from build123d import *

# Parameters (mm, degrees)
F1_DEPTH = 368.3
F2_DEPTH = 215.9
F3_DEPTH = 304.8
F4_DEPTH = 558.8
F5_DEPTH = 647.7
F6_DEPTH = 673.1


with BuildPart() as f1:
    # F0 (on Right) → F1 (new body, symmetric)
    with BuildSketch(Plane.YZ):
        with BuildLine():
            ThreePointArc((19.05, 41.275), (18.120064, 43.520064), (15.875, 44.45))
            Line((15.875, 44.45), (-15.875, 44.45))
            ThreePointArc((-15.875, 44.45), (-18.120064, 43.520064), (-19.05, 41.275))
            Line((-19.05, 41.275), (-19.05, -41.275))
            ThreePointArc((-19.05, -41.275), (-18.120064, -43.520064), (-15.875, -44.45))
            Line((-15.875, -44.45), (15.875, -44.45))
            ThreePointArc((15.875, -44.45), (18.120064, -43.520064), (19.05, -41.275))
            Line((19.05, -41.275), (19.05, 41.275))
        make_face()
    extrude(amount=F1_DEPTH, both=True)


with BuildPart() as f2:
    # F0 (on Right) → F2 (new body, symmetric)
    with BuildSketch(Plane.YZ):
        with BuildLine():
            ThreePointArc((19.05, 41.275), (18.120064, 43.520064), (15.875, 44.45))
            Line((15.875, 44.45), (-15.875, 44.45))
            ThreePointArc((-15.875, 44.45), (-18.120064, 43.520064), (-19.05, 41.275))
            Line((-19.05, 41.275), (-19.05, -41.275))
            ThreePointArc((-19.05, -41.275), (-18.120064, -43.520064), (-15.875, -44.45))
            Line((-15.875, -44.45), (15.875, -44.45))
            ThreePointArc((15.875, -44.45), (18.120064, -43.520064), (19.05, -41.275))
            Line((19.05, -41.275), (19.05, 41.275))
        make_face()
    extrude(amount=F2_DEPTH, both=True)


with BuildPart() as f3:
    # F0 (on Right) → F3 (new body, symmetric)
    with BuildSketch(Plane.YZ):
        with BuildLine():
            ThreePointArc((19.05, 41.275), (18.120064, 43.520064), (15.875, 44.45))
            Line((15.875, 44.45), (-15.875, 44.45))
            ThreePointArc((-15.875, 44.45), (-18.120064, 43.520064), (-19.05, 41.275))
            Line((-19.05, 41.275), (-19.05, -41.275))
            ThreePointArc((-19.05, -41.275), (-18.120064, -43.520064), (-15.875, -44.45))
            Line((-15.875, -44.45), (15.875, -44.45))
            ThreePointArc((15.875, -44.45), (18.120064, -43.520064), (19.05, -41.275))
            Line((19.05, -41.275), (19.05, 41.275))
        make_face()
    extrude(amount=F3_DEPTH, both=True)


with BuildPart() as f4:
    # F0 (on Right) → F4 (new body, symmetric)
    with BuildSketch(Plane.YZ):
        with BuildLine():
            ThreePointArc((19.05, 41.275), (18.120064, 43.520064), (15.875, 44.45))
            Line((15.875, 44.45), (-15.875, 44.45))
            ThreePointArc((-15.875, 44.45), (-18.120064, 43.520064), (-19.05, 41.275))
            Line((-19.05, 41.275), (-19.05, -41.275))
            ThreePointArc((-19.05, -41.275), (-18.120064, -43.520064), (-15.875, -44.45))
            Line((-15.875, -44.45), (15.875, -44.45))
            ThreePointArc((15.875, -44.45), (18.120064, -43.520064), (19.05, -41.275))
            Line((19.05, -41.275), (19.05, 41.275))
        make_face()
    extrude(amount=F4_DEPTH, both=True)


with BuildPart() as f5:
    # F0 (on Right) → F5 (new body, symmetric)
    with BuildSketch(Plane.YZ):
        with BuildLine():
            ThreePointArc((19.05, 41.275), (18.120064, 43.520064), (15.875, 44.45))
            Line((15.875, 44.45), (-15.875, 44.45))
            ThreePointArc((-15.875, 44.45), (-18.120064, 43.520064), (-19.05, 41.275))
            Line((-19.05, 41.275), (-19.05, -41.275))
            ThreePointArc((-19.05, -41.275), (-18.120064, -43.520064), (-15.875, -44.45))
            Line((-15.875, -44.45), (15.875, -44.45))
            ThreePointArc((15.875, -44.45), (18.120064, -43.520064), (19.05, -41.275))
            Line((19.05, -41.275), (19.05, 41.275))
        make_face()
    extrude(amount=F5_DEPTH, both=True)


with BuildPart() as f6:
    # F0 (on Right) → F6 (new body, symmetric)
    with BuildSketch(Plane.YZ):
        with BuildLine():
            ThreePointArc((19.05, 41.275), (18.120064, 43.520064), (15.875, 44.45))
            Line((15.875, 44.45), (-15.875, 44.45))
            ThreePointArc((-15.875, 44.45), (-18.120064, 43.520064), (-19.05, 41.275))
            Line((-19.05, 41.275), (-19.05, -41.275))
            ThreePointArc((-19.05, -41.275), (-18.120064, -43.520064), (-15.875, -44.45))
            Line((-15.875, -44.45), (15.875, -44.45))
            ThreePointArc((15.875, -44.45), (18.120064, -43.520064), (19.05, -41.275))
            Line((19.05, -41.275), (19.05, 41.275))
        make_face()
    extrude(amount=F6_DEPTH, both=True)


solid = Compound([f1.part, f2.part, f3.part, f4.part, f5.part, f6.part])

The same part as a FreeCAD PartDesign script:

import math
import FreeCAD as App
import Part
import Sketcher
Q = App.Units.Quantity

doc = App.newDocument("Part")
body = doc.addObject("PartDesign::Body", "Body")

sketch1 = body.newObject("Sketcher::SketchObject", "Sketch")
sketch1.AttachmentSupport = (doc.getObject("YZ_Plane"), [""])
sketch1.MapMode = "FlatFace"
sketch1.addGeometry([
    Part.ArcOfCircle(Part.Circle(App.Vector(15.9, 41.3, 0), App.Vector(0, 0, 1), 3.2), math.radians(0), math.radians(90)),
    Part.LineSegment(App.Vector(15.9, 44.5, 0), App.Vector(-15.9, 44.5, 0)),
    Part.ArcOfCircle(Part.Circle(App.Vector(-15.9, 41.3, 0), App.Vector(0, 0, 1), 3.2), math.radians(90), math.radians(180)),
    Part.LineSegment(App.Vector(-19.1, 41.3, 0), App.Vector(-19.1, -41.3, 0)),
    Part.ArcOfCircle(Part.Circle(App.Vector(-15.9, -41.3, 0), App.Vector(0, 0, 1), 3.2), math.radians(-180), math.radians(-90)),
    Part.LineSegment(App.Vector(-15.9, -44.5, 0), App.Vector(15.9, -44.5, 0)),
    Part.ArcOfCircle(Part.Circle(App.Vector(15.9, -41.3, 0), App.Vector(0, 0, 1), 3.2), math.radians(-90), math.radians(0)),
    Part.LineSegment(App.Vector(19.1, -41.3, 0), App.Vector(19.1, 41.3, 0)),
], False)
sketch1.addConstraint([
    Sketcher.Constraint("Tangent", 0, 2, 1, 1),
    Sketcher.Constraint("Tangent", 1, 2, 2, 1),
    Sketcher.Constraint("Tangent", 2, 2, 3, 1),
    Sketcher.Constraint("Tangent", 3, 2, 4, 1),
    Sketcher.Constraint("Tangent", 4, 2, 5, 1),
    Sketcher.Constraint("Tangent", 5, 2, 6, 1),
    Sketcher.Constraint("Tangent", 6, 2, 7, 1),
    Sketcher.Constraint("Tangent", 7, 2, 0, 1),
    Sketcher.Constraint("Horizontal", 1),
    Sketcher.Constraint("Vertical", 3),
    Sketcher.Constraint("Horizontal", 5),
    Sketcher.Constraint("Vertical", 7),
    Sketcher.Constraint("Equal", 0, 2),
    Sketcher.Constraint("Equal", 2, 4),
    Sketcher.Constraint("Equal", 4, 6),
    Sketcher.Constraint("Symmetric", 0, 3, 4, 3, -1, 1),
    Sketcher.Constraint("Radius", 0, Q("0.125 in")),
    Sketcher.Constraint("DistanceX", 1, 2, 1, 1, Q("1.25 in")),
    Sketcher.Constraint("DistanceY", 3, 2, 3, 1, Q("3.25 in")),
])
pad1 = body.newObject("PartDesign::Pad", "Pad")
pad1.Profile = sketch1
pad1.Length = Q("29 in")
pad1.Midplane = True
body2 = doc.addObject("PartDesign::Body", "Body001")

sketch2 = body2.newObject("Sketcher::SketchObject", "Sketch001")
sketch2.AttachmentSupport = (doc.getObject("YZ_Plane001"), [""])
sketch2.MapMode = "FlatFace"
sketch2.addGeometry([
    Part.ArcOfCircle(Part.Circle(App.Vector(15.9, 41.3, 0), App.Vector(0, 0, 1), 3.2), math.radians(0), math.radians(90)),
    Part.LineSegment(App.Vector(15.9, 44.5, 0), App.Vector(-15.9, 44.5, 0)),
    Part.ArcOfCircle(Part.Circle(App.Vector(-15.9, 41.3, 0), App.Vector(0, 0, 1), 3.2), math.radians(90), math.radians(180)),
    Part.LineSegment(App.Vector(-19.1, 41.3, 0), App.Vector(-19.1, -41.3, 0)),
    Part.ArcOfCircle(Part.Circle(App.Vector(-15.9, -41.3, 0), App.Vector(0, 0, 1), 3.2), math.radians(-180), math.radians(-90)),
    Part.LineSegment(App.Vector(-15.9, -44.5, 0), App.Vector(15.9, -44.5, 0)),
    Part.ArcOfCircle(Part.Circle(App.Vector(15.9, -41.3, 0), App.Vector(0, 0, 1), 3.2), math.radians(-90), math.radians(0)),
    Part.LineSegment(App.Vector(19.1, -41.3, 0), App.Vector(19.1, 41.3, 0)),
], False)
sketch2.addConstraint([
    Sketcher.Constraint("Tangent", 0, 2, 1, 1),
    Sketcher.Constraint("Tangent", 1, 2, 2, 1),
    Sketcher.Constraint("Tangent", 2, 2, 3, 1),
    Sketcher.Constraint("Tangent", 3, 2, 4, 1),
    Sketcher.Constraint("Tangent", 4, 2, 5, 1),
    Sketcher.Constraint("Tangent", 5, 2, 6, 1),
    Sketcher.Constraint("Tangent", 6, 2, 7, 1),
    Sketcher.Constraint("Tangent", 7, 2, 0, 1),
    Sketcher.Constraint("Horizontal", 1),
    Sketcher.Constraint("Vertical", 3),
    Sketcher.Constraint("Horizontal", 5),
    Sketcher.Constraint("Vertical", 7),
    Sketcher.Constraint("Equal", 0, 2),
    Sketcher.Constraint("Equal", 2, 4),
    Sketcher.Constraint("Equal", 4, 6),
    Sketcher.Constraint("Symmetric", 0, 3, 4, 3, -1, 1),
    Sketcher.Constraint("Radius", 0, Q("0.125 in")),
    Sketcher.Constraint("DistanceX", 1, 2, 1, 1, Q("1.25 in")),
    Sketcher.Constraint("DistanceY", 3, 2, 3, 1, Q("3.25 in")),
])
pad2 = body2.newObject("PartDesign::Pad", "Pad001")
pad2.Profile = sketch2
pad2.Length = Q("17 in")
pad2.Midplane = True
body3 = doc.addObject("PartDesign::Body", "Body002")

sketch3 = body3.newObject("Sketcher::SketchObject", "Sketch002")
sketch3.AttachmentSupport = (doc.getObject("YZ_Plane002"), [""])
sketch3.MapMode = "FlatFace"
sketch3.addGeometry([
    Part.ArcOfCircle(Part.Circle(App.Vector(15.9, 41.3, 0), App.Vector(0, 0, 1), 3.2), math.radians(0), math.radians(90)),
    Part.LineSegment(App.Vector(15.9, 44.5, 0), App.Vector(-15.9, 44.5, 0)),
    Part.ArcOfCircle(Part.Circle(App.Vector(-15.9, 41.3, 0), App.Vector(0, 0, 1), 3.2), math.radians(90), math.radians(180)),
    Part.LineSegment(App.Vector(-19.1, 41.3, 0), App.Vector(-19.1, -41.3, 0)),
    Part.ArcOfCircle(Part.Circle(App.Vector(-15.9, -41.3, 0), App.Vector(0, 0, 1), 3.2), math.radians(-180), math.radians(-90)),
    Part.LineSegment(App.Vector(-15.9, -44.5, 0), App.Vector(15.9, -44.5, 0)),
    Part.ArcOfCircle(Part.Circle(App.Vector(15.9, -41.3, 0), App.Vector(0, 0, 1), 3.2), math.radians(-90), math.radians(0)),
    Part.LineSegment(App.Vector(19.1, -41.3, 0), App.Vector(19.1, 41.3, 0)),
], False)
sketch3.addConstraint([
    Sketcher.Constraint("Tangent", 0, 2, 1, 1),
    Sketcher.Constraint("Tangent", 1, 2, 2, 1),
    Sketcher.Constraint("Tangent", 2, 2, 3, 1),
    Sketcher.Constraint("Tangent", 3, 2, 4, 1),
    Sketcher.Constraint("Tangent", 4, 2, 5, 1),
    Sketcher.Constraint("Tangent", 5, 2, 6, 1),
    Sketcher.Constraint("Tangent", 6, 2, 7, 1),
    Sketcher.Constraint("Tangent", 7, 2, 0, 1),
    Sketcher.Constraint("Horizontal", 1),
    Sketcher.Constraint("Vertical", 3),
    Sketcher.Constraint("Horizontal", 5),
    Sketcher.Constraint("Vertical", 7),
    Sketcher.Constraint("Equal", 0, 2),
    Sketcher.Constraint("Equal", 2, 4),
    Sketcher.Constraint("Equal", 4, 6),
    Sketcher.Constraint("Symmetric", 0, 3, 4, 3, -1, 1),
    Sketcher.Constraint("Radius", 0, Q("0.125 in")),
    Sketcher.Constraint("DistanceX", 1, 2, 1, 1, Q("1.25 in")),
    Sketcher.Constraint("DistanceY", 3, 2, 3, 1, Q("3.25 in")),
])
pad3 = body3.newObject("PartDesign::Pad", "Pad002")
pad3.Profile = sketch3
pad3.Length = Q("24 in")
pad3.Midplane = True
body4 = doc.addObject("PartDesign::Body", "Body003")

sketch4 = body4.newObject("Sketcher::SketchObject", "Sketch003")
sketch4.AttachmentSupport = (doc.getObject("YZ_Plane003"), [""])
sketch4.MapMode = "FlatFace"
sketch4.addGeometry([
    Part.ArcOfCircle(Part.Circle(App.Vector(15.9, 41.3, 0), App.Vector(0, 0, 1), 3.2), math.radians(0), math.radians(90)),
    Part.LineSegment(App.Vector(15.9, 44.5, 0), App.Vector(-15.9, 44.5, 0)),
    Part.ArcOfCircle(Part.Circle(App.Vector(-15.9, 41.3, 0), App.Vector(0, 0, 1), 3.2), math.radians(90), math.radians(180)),
    Part.LineSegment(App.Vector(-19.1, 41.3, 0), App.Vector(-19.1, -41.3, 0)),
    Part.ArcOfCircle(Part.Circle(App.Vector(-15.9, -41.3, 0), App.Vector(0, 0, 1), 3.2), math.radians(-180), math.radians(-90)),
    Part.LineSegment(App.Vector(-15.9, -44.5, 0), App.Vector(15.9, -44.5, 0)),
    Part.ArcOfCircle(Part.Circle(App.Vector(15.9, -41.3, 0), App.Vector(0, 0, 1), 3.2), math.radians(-90), math.radians(0)),
    Part.LineSegment(App.Vector(19.1, -41.3, 0), App.Vector(19.1, 41.3, 0)),
], False)
sketch4.addConstraint([
    Sketcher.Constraint("Tangent", 0, 2, 1, 1),
    Sketcher.Constraint("Tangent", 1, 2, 2, 1),
    Sketcher.Constraint("Tangent", 2, 2, 3, 1),
    Sketcher.Constraint("Tangent", 3, 2, 4, 1),
    Sketcher.Constraint("Tangent", 4, 2, 5, 1),
    Sketcher.Constraint("Tangent", 5, 2, 6, 1),
    Sketcher.Constraint("Tangent", 6, 2, 7, 1),
    Sketcher.Constraint("Tangent", 7, 2, 0, 1),
    Sketcher.Constraint("Horizontal", 1),
    Sketcher.Constraint("Vertical", 3),
    Sketcher.Constraint("Horizontal", 5),
    Sketcher.Constraint("Vertical", 7),
    Sketcher.Constraint("Equal", 0, 2),
    Sketcher.Constraint("Equal", 2, 4),
    Sketcher.Constraint("Equal", 4, 6),
    Sketcher.Constraint("Symmetric", 0, 3, 4, 3, -1, 1),
    Sketcher.Constraint("Radius", 0, Q("0.125 in")),
    Sketcher.Constraint("DistanceX", 1, 2, 1, 1, Q("1.25 in")),
    Sketcher.Constraint("DistanceY", 3, 2, 3, 1, Q("3.25 in")),
])
pad4 = body4.newObject("PartDesign::Pad", "Pad003")
pad4.Profile = sketch4
pad4.Length = Q("44 in")
pad4.Midplane = True
body5 = doc.addObject("PartDesign::Body", "Body004")

sketch5 = body5.newObject("Sketcher::SketchObject", "Sketch004")
sketch5.AttachmentSupport = (doc.getObject("YZ_Plane004"), [""])
sketch5.MapMode = "FlatFace"
sketch5.addGeometry([
    Part.ArcOfCircle(Part.Circle(App.Vector(15.9, 41.3, 0), App.Vector(0, 0, 1), 3.2), math.radians(0), math.radians(90)),
    Part.LineSegment(App.Vector(15.9, 44.5, 0), App.Vector(-15.9, 44.5, 0)),
    Part.ArcOfCircle(Part.Circle(App.Vector(-15.9, 41.3, 0), App.Vector(0, 0, 1), 3.2), math.radians(90), math.radians(180)),
    Part.LineSegment(App.Vector(-19.1, 41.3, 0), App.Vector(-19.1, -41.3, 0)),
    Part.ArcOfCircle(Part.Circle(App.Vector(-15.9, -41.3, 0), App.Vector(0, 0, 1), 3.2), math.radians(-180), math.radians(-90)),
    Part.LineSegment(App.Vector(-15.9, -44.5, 0), App.Vector(15.9, -44.5, 0)),
    Part.ArcOfCircle(Part.Circle(App.Vector(15.9, -41.3, 0), App.Vector(0, 0, 1), 3.2), math.radians(-90), math.radians(0)),
    Part.LineSegment(App.Vector(19.1, -41.3, 0), App.Vector(19.1, 41.3, 0)),
], False)
sketch5.addConstraint([
    Sketcher.Constraint("Tangent", 0, 2, 1, 1),
    Sketcher.Constraint("Tangent", 1, 2, 2, 1),
    Sketcher.Constraint("Tangent", 2, 2, 3, 1),
    Sketcher.Constraint("Tangent", 3, 2, 4, 1),
    Sketcher.Constraint("Tangent", 4, 2, 5, 1),
    Sketcher.Constraint("Tangent", 5, 2, 6, 1),
    Sketcher.Constraint("Tangent", 6, 2, 7, 1),
    Sketcher.Constraint("Tangent", 7, 2, 0, 1),
    Sketcher.Constraint("Horizontal", 1),
    Sketcher.Constraint("Vertical", 3),
    Sketcher.Constraint("Horizontal", 5),
    Sketcher.Constraint("Vertical", 7),
    Sketcher.Constraint("Equal", 0, 2),
    Sketcher.Constraint("Equal", 2, 4),
    Sketcher.Constraint("Equal", 4, 6),
    Sketcher.Constraint("Symmetric", 0, 3, 4, 3, -1, 1),
    Sketcher.Constraint("Radius", 0, Q("0.125 in")),
    Sketcher.Constraint("DistanceX", 1, 2, 1, 1, Q("1.25 in")),
    Sketcher.Constraint("DistanceY", 3, 2, 3, 1, Q("3.25 in")),
])
pad5 = body5.newObject("PartDesign::Pad", "Pad004")
pad5.Profile = sketch5
pad5.Length = Q("51 in")
pad5.Midplane = True
body6 = doc.addObject("PartDesign::Body", "Body005")

sketch6 = body6.newObject("Sketcher::SketchObject", "Sketch005")
sketch6.AttachmentSupport = (doc.getObject("YZ_Plane005"), [""])
sketch6.MapMode = "FlatFace"
sketch6.addGeometry([
    Part.ArcOfCircle(Part.Circle(App.Vector(15.9, 41.3, 0), App.Vector(0, 0, 1), 3.2), math.radians(0), math.radians(90)),
    Part.LineSegment(App.Vector(15.9, 44.5, 0), App.Vector(-15.9, 44.5, 0)),
    Part.ArcOfCircle(Part.Circle(App.Vector(-15.9, 41.3, 0), App.Vector(0, 0, 1), 3.2), math.radians(90), math.radians(180)),
    Part.LineSegment(App.Vector(-19.1, 41.3, 0), App.Vector(-19.1, -41.3, 0)),
    Part.ArcOfCircle(Part.Circle(App.Vector(-15.9, -41.3, 0), App.Vector(0, 0, 1), 3.2), math.radians(-180), math.radians(-90)),
    Part.LineSegment(App.Vector(-15.9, -44.5, 0), App.Vector(15.9, -44.5, 0)),
    Part.ArcOfCircle(Part.Circle(App.Vector(15.9, -41.3, 0), App.Vector(0, 0, 1), 3.2), math.radians(-90), math.radians(0)),
    Part.LineSegment(App.Vector(19.1, -41.3, 0), App.Vector(19.1, 41.3, 0)),
], False)
sketch6.addConstraint([
    Sketcher.Constraint("Tangent", 0, 2, 1, 1),
    Sketcher.Constraint("Tangent", 1, 2, 2, 1),
    Sketcher.Constraint("Tangent", 2, 2, 3, 1),
    Sketcher.Constraint("Tangent", 3, 2, 4, 1),
    Sketcher.Constraint("Tangent", 4, 2, 5, 1),
    Sketcher.Constraint("Tangent", 5, 2, 6, 1),
    Sketcher.Constraint("Tangent", 6, 2, 7, 1),
    Sketcher.Constraint("Tangent", 7, 2, 0, 1),
    Sketcher.Constraint("Horizontal", 1),
    Sketcher.Constraint("Vertical", 3),
    Sketcher.Constraint("Horizontal", 5),
    Sketcher.Constraint("Vertical", 7),
    Sketcher.Constraint("Equal", 0, 2),
    Sketcher.Constraint("Equal", 2, 4),
    Sketcher.Constraint("Equal", 4, 6),
    Sketcher.Constraint("Symmetric", 0, 3, 4, 3, -1, 1),
    Sketcher.Constraint("Radius", 0, Q("0.125 in")),
    Sketcher.Constraint("DistanceX", 1, 2, 1, 1, Q("1.25 in")),
    Sketcher.Constraint("DistanceY", 3, 2, 3, 1, Q("3.25 in")),
])
pad6 = body6.newObject("PartDesign::Pad", "Pad005")
pad6.Profile = sketch6
pad6.Length = Q("53 in")
pad6.Midplane = True

doc.recompute()
